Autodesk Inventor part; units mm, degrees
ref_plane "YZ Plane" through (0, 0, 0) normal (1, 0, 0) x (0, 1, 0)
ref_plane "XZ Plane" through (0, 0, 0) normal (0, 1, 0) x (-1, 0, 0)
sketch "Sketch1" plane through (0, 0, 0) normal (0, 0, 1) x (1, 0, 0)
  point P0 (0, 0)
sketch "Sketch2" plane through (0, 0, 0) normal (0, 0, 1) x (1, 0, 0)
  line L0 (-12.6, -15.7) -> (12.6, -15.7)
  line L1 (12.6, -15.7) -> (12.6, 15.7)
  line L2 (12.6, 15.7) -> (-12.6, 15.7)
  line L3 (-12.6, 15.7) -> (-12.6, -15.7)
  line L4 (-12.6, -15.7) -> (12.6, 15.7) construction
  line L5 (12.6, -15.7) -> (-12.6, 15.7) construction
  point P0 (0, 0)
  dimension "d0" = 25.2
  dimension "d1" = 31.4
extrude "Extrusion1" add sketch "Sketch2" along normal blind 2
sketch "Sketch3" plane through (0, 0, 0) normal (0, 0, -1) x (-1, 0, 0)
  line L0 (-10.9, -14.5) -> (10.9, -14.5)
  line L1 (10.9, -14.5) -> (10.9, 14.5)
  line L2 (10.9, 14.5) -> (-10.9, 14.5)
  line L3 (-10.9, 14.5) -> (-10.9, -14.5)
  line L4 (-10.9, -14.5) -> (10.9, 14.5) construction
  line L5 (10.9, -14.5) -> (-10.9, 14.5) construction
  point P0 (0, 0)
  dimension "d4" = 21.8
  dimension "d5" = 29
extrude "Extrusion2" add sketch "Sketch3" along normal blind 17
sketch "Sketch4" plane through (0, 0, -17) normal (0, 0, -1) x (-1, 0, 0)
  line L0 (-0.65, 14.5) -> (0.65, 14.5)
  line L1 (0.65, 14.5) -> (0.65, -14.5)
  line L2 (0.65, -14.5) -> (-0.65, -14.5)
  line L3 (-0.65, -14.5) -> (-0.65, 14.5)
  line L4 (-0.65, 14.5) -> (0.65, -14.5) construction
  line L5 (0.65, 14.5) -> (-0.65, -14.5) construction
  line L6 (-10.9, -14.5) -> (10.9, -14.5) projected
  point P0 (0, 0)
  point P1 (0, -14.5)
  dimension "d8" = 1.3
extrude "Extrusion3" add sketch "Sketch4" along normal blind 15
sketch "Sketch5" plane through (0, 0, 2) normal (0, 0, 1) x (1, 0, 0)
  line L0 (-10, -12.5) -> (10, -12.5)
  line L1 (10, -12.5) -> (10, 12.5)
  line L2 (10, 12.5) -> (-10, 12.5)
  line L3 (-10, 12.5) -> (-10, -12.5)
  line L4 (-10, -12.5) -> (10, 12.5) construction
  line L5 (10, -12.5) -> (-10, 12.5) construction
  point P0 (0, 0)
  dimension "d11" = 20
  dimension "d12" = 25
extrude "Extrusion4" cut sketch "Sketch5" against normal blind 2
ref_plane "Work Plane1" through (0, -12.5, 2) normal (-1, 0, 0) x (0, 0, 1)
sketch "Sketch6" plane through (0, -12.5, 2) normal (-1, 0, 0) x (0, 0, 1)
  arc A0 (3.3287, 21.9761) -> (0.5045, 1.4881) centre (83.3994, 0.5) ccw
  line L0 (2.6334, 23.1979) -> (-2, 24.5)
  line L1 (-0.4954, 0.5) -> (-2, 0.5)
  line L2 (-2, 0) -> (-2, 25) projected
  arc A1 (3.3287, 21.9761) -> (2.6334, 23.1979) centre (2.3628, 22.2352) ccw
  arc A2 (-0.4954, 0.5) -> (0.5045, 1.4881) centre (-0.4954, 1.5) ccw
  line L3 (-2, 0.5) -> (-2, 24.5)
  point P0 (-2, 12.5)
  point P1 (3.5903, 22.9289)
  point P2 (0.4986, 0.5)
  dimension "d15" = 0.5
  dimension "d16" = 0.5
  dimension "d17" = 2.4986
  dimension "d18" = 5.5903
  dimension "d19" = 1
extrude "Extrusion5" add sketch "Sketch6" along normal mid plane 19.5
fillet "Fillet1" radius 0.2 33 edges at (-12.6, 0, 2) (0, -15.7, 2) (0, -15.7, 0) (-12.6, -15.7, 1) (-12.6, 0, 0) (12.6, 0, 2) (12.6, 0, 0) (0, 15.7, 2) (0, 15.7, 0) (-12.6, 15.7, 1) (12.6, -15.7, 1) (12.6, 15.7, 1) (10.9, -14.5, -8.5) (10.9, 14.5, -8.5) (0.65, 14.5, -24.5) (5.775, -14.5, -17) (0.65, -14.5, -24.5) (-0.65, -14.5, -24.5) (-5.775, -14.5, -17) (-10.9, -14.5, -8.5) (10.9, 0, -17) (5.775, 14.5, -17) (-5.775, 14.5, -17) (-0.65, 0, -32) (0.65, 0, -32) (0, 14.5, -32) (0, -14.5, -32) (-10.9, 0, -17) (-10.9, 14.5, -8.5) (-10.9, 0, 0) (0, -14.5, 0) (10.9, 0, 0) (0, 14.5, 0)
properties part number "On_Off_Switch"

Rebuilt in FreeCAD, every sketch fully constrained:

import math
import FreeCAD as App
import Part
import Sketcher
from FreeCAD import Vector


def edges_at(feature, points):
    """Names of the edges that pass closest to the given points."""
    edges = feature.Shape.Edges
    near = lambda p: min(range(len(edges)), key=lambda i: edges[i].distToShape(Part.Vertex(*p))[0])
    return sorted({f"Edge{near(p) + 1}" for p in points})

doc = App.newDocument("Part")
params = doc.addObject("Spreadsheet::Sheet", "Params")
for row, (alias, value) in enumerate([
    ("sketch1_width", "25.2 mm"),
    ("sketch1_height", "31.4 mm"),
    ("pad1_length", "2 mm"),
    ("sketch2_height", "29 mm"),
    ("sketch2_width", "21.8 mm"),
    ("pad2_length", "17 mm"),
    ("sketch3_width", "1.3 mm"),
    ("sketch3_height", "29 mm"),
    ("pad3_length", "15 mm"),
    ("sketch4_width", "20 mm"),
    ("sketch4_height", "25 mm"),
    ("pocket1_length", "2 mm"),
    ("sketch5_radius", "1 mm"),
    ("sketch5_width", "24 mm"),
    ("pad4_length", "19.5 mm"),
    ("fillet_radius", "0.2 mm"),
], start=1):
    params.set(f"A{row}", alias)
    params.set(f"B{row}", "=" + value)
    params.setAlias(f"B{row}", alias)

body = doc.addObject("PartDesign::Body", "Body")

# Sketch on XY plane
sketch1 = body.newObject("Sketcher::SketchObject", "Sketch")
sketch1.AttachmentSupport = (doc.getObject("XY_Plane"), [""])
sketch1.MapMode = "FlatFace"
sketch1.addGeometry([
    Part.LineSegment(Vector(-13, 16, 0), Vector(-13, -16, 0)),
    Part.LineSegment(Vector(-13, -16, 0), Vector(13, -16, 0)),
    Part.LineSegment(Vector(13, -16, 0), Vector(13, 16, 0)),
    Part.LineSegment(Vector(13, 16, 0), Vector(-13, 16, 0)),
], False)
sketch1.addConstraint([
    Sketcher.Constraint("Coincident", 0, 2, 1, 1),
    Sketcher.Constraint("Coincident", 1, 2, 2, 1),
    Sketcher.Constraint("Coincident", 2, 2, 3, 1),
    Sketcher.Constraint("Coincident", 3, 2, 0, 1),
    Sketcher.Constraint("Vertical", 0),
    Sketcher.Constraint("Horizontal", 1),
    Sketcher.Constraint("Vertical", 2),
    Sketcher.Constraint("Horizontal", 3),
    Sketcher.Constraint("Symmetric", 0, 2, 2, 2, -1, 1),
    Sketcher.Constraint("DistanceX", 1, 1, 1, 2, 25.2),
    Sketcher.Constraint("DistanceY", 0, 2, 0, 1, 31.4),
])
sketch1.setExpression("Constraints[9]", "Params.sketch1_width")
sketch1.setExpression("Constraints[10]", "Params.sketch1_height")
pad1 = body.newObject("PartDesign::Pad", "Pad")
pad1.Profile = sketch1
pad1.setExpression("Length", "Params.pad1_length")

# Sketch on XY plane
sketch2 = body.newObject("Sketcher::SketchObject", "Sketch001")
sketch2.AttachmentSupport = (doc.getObject("XY_Plane"), [""])
sketch2.MapMode = "FlatFace"
sketch2.addGeometry([
    Part.LineSegment(Vector(11, 14, 0), Vector(11, -14, 0)),
    Part.LineSegment(Vector(11, -14, 0), Vector(-11, -14, 0)),
    Part.LineSegment(Vector(-11, -14, 0), Vector(-11, 14, 0)),
    Part.LineSegment(Vector(-11, 14, 0), Vector(11, 14, 0)),
], False)
sketch2.addConstraint([
    Sketcher.Constraint("Coincident", 0, 2, 1, 1),
    Sketcher.Constraint("Coincident", 1, 2, 2, 1),
    Sketcher.Constraint("Coincident", 2, 2, 3, 1),
    Sketcher.Constraint("Coincident", 3, 2, 0, 1),
    Sketcher.Constraint("Vertical", 0),
    Sketcher.Constraint("Horizontal", 1),
    Sketcher.Constraint("Vertical", 2),
    Sketcher.Constraint("Horizontal", 3),
    Sketcher.Constraint("Symmetric", 0, 2, 2, 2, -1, 1),
    Sketcher.Constraint("DistanceY", 0, 2, 0, 1, 29.0),
    Sketcher.Constraint("DistanceX", 1, 2, 1, 1, 21.8),
])
sketch2.setExpression("Constraints[9]", "Params.sketch2_height")
sketch2.setExpression("Constraints[10]", "Params.sketch2_width")
pad2 = body.newObject("PartDesign::Pad", "Pad001")
pad2.Profile = sketch2
pad2.setExpression("Length", "Params.pad2_length")
pad2.Reversed = True

# Sketch on XY plane
sketch3 = body.newObject("Sketcher::SketchObject", "Sketch002")
sketch3.AttachmentSupport = (doc.getObject("XY_Plane"), [""])
sketch3.MapMode = "FlatFace"
sketch3.AttachmentOffset = App.Placement(Vector(0, 0, -17), App.Rotation())
sketch3.addGeometry([
    Part.LineSegment(Vector(-0.7, 14.5, 0), Vector(0.7, 14.5, 0)),
    Part.LineSegment(Vector(0.7, 14.5, 0), Vector(0.7, -14.5, 0)),
    Part.LineSegment(Vector(0.7, -14.5, 0), Vector(-0.7, -14.5, 0)),
    Part.LineSegment(Vector(-0.7, -14.5, 0), Vector(-0.7, 14.5, 0)),
], False)
sketch3.addConstraint([
    Sketcher.Constraint("Coincident", 0, 2, 1, 1),
    Sketcher.Constraint("Coincident", 1, 2, 2, 1),
    Sketcher.Constraint("Coincident", 2, 2, 3, 1),
    Sketcher.Constraint("Coincident", 3, 2, 0, 1),
    Sketcher.Constraint("Horizontal", 0),
    Sketcher.Constraint("Vertical", 1),
    Sketcher.Constraint("Horizontal", 2),
    Sketcher.Constraint("Vertical", 3),
    Sketcher.Constraint("Symmetric", 0, 2, 2, 2, -1, 1),
    Sketcher.Constraint("DistanceX", 0, 1, 0, 2, 1.3),
    Sketcher.Constraint("DistanceY", 1, 2, 1, 1, 29.0),
])
sketch3.setExpression("Constraints[9]", "Params.sketch3_width")
sketch3.setExpression("Constraints[10]", "Params.sketch3_height")
pad3 = body.newObject("PartDesign::Pad", "Pad002")
pad3.Profile = sketch3
pad3.setExpression("Length", "Params.pad3_length")
pad3.Reversed = True

# Sketch on XY plane
sketch4 = body.newObject("Sketcher::SketchObject", "Sketch003")
sketch4.AttachmentSupport = (doc.getObject("XY_Plane"), [""])
sketch4.MapMode = "FlatFace"
sketch4.AttachmentOffset = App.Placement(Vector(0, 0, 2), App.Rotation())
sketch4.addGeometry([
    Part.LineSegment(Vector(-10, 12, 0), Vector(-10, -12, 0)),
    Part.LineSegment(Vector(-10, -12, 0), Vector(10, -12, 0)),
    Part.LineSegment(Vector(10, -12, 0), Vector(10, 12, 0)),
    Part.LineSegment(Vector(10, 12, 0), Vector(-10, 12, 0)),
], False)
sketch4.addConstraint([
    Sketcher.Constraint("Coincident", 0, 2, 1, 1),
    Sketcher.Constraint("Coincident", 1, 2, 2, 1),
    Sketcher.Constraint("Coincident", 2, 2, 3, 1),
    Sketcher.Constraint("Coincident", 3, 2, 0, 1),
    Sketcher.Constraint("Vertical", 0),
    Sketcher.Constraint("Horizontal", 1),
    Sketcher.Constraint("Vertical", 2),
    Sketcher.Constraint("Horizontal", 3),
    Sketcher.Constraint("Symmetric", 0, 2, 2, 2, -1, 1),
    Sketcher.Constraint("DistanceX", 1, 1, 1, 2, 20.0),
    Sketcher.Constraint("DistanceY", 0, 2, 0, 1, 25.0),
])
sketch4.setExpression("Constraints[9]", "Params.sketch4_width")
sketch4.setExpression("Constraints[10]", "Params.sketch4_height")
pocket1 = body.newObject("PartDesign::Pocket", "Pocket")
pocket1.Profile = sketch4
pocket1.setExpression("Length", "Params.pocket1_length")

# Sketch on YZ plane
sketch5 = body.newObject("Sketcher::SketchObject", "Sketch004")
sketch5.AttachmentSupport = (doc.getObject("YZ_Plane"), [""])
sketch5.MapMode = "FlatFace"
sketch5.addGeometry([
    Part.ArcOfCircle(Part.Circle(Vector(-12, 85.4, 0), Vector(0, 0, 1), 82.9), math.radians(-89.32), math.radians(-74.99)),  # 0
    Part.ArcOfCircle(Part.Circle(Vector(9.7, 4.4, 0), Vector(0, 0, 1), 1), math.radians(16), math.radians(105)),  # 1
    Part.LineSegment(Vector(10.7, 4.6, 0), Vector(12, 0, 0)),  # 2
    Part.LineSegment(Vector(12, 0, 0), Vector(-12, 0, 0)),  # 3
    Part.LineSegment(Vector(-12, 0, 0), Vector(-12, 1.5, 0)),  # 4
    Part.ArcOfCircle(Part.Circle(Vector(-11, 1.5, 0), Vector(0, 0, 1), 1), math.radians(91), math.radians(180)),  # 5
], False)
sketch5.addConstraint([
    Sketcher.Constraint("Tangent", 0, 2, 1, 2),
    Sketcher.Constraint("Tangent", 1, 1, 2, 1),
    Sketcher.Constraint("Coincident", 2, 2, 3, 1),
    Sketcher.Constraint("Coincident", 3, 2, 4, 1),
    Sketcher.Constraint("Tangent", 4, 2, 5, 2),
    Sketcher.Constraint("Tangent", 5, 1, 0, 1),
    Sketcher.Constraint("Horizontal", 3),
    Sketcher.Constraint("Vertical", 4),
    Sketcher.Constraint("Equal", 1, 5),
    Sketcher.Constraint("Symmetric", 2, 2, 3, 2, -1, 1),
    Sketcher.Constraint("Vertical", 0, 3, 3, 2),
    Sketcher.Constraint("Radius", 1, 1.0),
    Sketcher.Constraint("DistanceX", 3, 2, 3, 1, 24.0),
    Sketcher.Constraint("Radius", 0, 82.9008),
    Sketcher.Constraint("Distance", 2, 4.813),
    Sketcher.Constraint("DistanceY", 4, 1, 4, 2, 1.5046),
])
sketch5.setExpression("Constraints[11]", "Params.sketch5_radius")
sketch5.setExpression("Constraints[12]", "Params.sketch5_width")
pad4 = body.newObject("PartDesign::Pad", "Pad003")
pad4.Profile = sketch5
pad4.setExpression("Length", "Params.pad4_length")
pad4.Midplane = True
doc.recompute()

fillet = body.newObject("PartDesign::Fillet", "Fillet")
fillet.Base = (pad4, edges_at(pad4, [
    (-12.6, 0, 2),
    (0, -15.7, 2),
    (0, -15.7, 0),
    (-12.6, -15.7, 1),
    (-12.6, 0, 0),
    (12.6, 0, 2),
    (12.6, 0, 0),
    (0, 15.7, 2),
    (0, 15.7, 0),
    (-12.6, 15.7, 1),
    (12.6, -15.7, 1),
    (12.6, 15.7, 1),
    (10.9, -14.5, -8.5),
    (10.9, 14.5, -8.5),
    (0.65, 14.5, -24.5),
    (5.775, -14.5, -17),
    (0.65, -14.5, -24.5),
    (-0.65, -14.5, -24.5),
    (-5.775, -14.5, -17),
    (-10.9, -14.5, -8.5),
    (10.9, 0, -17),
    (5.775, 14.5, -17),
    (-5.775, 14.5, -17),
    (-0.65, 0, -32),
    (0.65, 0, -32),
    (0, 14.5, -32),
    (0, -14.5, -32),
    (-10.9, 0, -17),
    (-10.9, 14.5, -8.5),
    (-10.9, 0, 0),
    (0, -14.5, 0),
    (10.9, 0, 0),
    (0, 14.5, 0),
]))
fillet.setExpression("Radius", "Params.fillet_radius")

doc.recompute()
